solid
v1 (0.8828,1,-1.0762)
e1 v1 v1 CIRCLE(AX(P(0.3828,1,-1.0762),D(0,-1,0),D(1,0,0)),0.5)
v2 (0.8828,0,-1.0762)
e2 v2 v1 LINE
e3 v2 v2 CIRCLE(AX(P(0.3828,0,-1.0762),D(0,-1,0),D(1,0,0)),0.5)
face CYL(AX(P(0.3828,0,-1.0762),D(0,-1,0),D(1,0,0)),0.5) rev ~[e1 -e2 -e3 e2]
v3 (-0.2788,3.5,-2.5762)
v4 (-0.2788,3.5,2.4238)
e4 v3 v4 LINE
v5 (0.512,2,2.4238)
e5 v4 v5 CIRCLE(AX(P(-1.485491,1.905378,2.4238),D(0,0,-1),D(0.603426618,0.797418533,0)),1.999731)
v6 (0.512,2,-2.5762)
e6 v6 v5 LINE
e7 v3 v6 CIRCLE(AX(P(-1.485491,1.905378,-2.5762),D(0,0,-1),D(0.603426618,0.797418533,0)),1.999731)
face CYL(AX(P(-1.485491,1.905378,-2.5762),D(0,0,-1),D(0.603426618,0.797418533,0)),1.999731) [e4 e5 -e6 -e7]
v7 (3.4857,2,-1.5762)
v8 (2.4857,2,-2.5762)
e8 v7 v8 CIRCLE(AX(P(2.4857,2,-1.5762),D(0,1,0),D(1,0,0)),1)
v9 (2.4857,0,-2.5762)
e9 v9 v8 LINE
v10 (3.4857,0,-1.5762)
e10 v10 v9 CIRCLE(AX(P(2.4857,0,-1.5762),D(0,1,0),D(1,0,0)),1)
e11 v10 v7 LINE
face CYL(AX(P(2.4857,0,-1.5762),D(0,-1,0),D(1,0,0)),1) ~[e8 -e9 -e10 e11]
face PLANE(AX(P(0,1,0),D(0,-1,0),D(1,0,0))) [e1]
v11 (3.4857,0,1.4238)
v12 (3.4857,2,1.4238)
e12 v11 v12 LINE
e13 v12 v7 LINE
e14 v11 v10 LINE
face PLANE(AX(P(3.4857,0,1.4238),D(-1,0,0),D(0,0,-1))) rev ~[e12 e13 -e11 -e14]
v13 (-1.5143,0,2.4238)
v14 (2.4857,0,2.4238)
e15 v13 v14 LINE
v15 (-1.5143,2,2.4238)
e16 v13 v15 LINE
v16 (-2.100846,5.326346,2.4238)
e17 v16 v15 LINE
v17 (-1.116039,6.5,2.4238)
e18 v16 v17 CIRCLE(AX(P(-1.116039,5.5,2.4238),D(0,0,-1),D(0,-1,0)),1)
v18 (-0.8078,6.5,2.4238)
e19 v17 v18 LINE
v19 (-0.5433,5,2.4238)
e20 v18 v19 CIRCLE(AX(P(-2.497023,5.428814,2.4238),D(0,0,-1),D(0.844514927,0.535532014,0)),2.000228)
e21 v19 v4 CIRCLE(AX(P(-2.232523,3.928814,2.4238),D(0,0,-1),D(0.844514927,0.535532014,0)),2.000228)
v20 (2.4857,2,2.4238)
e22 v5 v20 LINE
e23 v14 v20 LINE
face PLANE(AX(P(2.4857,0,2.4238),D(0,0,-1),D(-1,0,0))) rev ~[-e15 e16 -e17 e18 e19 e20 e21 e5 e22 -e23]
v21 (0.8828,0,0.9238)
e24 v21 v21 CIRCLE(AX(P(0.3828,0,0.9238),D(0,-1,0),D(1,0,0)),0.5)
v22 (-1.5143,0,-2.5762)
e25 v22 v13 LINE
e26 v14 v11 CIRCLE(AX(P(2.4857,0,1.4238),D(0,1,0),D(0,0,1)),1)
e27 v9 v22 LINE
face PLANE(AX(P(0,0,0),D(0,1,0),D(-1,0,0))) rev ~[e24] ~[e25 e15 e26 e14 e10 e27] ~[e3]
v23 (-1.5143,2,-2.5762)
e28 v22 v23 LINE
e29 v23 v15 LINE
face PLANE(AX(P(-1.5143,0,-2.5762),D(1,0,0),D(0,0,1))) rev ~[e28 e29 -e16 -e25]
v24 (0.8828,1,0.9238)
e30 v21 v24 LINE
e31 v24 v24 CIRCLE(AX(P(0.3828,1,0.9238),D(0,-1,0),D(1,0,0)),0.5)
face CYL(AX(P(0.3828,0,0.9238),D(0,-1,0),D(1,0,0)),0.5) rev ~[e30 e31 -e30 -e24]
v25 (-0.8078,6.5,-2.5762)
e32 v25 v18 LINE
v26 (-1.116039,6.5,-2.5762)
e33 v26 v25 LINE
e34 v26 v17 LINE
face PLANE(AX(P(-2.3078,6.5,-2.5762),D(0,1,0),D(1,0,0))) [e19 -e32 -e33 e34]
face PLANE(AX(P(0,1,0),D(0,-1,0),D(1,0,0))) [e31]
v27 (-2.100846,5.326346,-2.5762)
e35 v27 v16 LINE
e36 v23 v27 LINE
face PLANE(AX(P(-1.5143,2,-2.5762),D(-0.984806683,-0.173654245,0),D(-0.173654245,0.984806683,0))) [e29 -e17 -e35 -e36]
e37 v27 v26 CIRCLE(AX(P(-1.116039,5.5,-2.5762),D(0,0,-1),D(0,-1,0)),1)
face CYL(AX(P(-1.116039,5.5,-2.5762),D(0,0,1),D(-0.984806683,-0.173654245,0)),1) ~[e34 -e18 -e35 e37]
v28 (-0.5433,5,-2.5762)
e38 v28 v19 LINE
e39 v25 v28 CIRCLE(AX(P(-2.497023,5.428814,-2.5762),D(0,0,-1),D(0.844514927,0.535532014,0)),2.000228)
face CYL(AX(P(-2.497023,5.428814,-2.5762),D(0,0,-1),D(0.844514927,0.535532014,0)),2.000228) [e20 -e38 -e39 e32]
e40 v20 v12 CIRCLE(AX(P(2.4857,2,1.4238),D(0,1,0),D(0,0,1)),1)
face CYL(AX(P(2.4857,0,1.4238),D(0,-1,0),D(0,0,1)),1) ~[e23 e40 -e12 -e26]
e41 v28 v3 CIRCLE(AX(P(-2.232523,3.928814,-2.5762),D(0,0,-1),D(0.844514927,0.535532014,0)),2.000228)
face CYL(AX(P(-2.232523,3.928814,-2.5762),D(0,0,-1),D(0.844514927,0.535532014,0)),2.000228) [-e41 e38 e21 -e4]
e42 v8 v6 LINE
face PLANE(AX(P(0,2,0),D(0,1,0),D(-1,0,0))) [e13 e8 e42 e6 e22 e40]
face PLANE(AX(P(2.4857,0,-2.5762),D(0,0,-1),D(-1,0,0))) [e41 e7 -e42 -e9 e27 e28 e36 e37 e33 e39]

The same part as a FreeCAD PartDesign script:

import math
import FreeCAD as App
import Part
import Sketcher
Q = App.Units.Quantity


def edges_at(feature, points):
    """Names of the edges that pass closest to the given points."""
    edges = feature.Shape.Edges
    near = lambda p: min(range(len(edges)), key=lambda i: edges[i].distToShape(Part.Vertex(*p))[0])
    return sorted({f"Edge{near(p) + 1}" for p in points})

doc = App.newDocument("Part")
body = doc.addObject("PartDesign::Body", "Body")

sketch1 = body.newObject("Sketcher::SketchObject", "Sketch")
sketch1.AttachmentSupport = (doc.getObject("XZ_Plane"), [""])
sketch1.MapMode = "FlatFace"
sketch1.addGeometry(Part.ArcOfCircle(Part.Circle(App.Vector(2.5, -1.6, 0), App.Vector(0, 0, 1), 1), math.radians(-90), math.radians(0)), False)
sketch1.addGeometry(Part.LineSegment(App.Vector(2.5, -2.6, 0), App.Vector(-1.5, -2.6, 0)), False)
sketch1.addGeometry(Part.LineSegment(App.Vector(-1.5, -2.6, 0), App.Vector(-1.5, 2.4, 0)), False)
sketch1.addGeometry(Part.LineSegment(App.Vector(-1.5, 2.4, 0), App.Vector(2.5, 2.4, 0)), False)
sketch1.addGeometry(Part.ArcOfCircle(Part.Circle(App.Vector(2.5, 1.4, 0), App.Vector(0, 0, 1), 1), math.radians(0), math.radians(90)), False)
sketch1.addGeometry(Part.LineSegment(App.Vector(3.5, 1.4, 0), App.Vector(3.5, -1.6, 0)), False)
sketch1.addConstraint(Sketcher.Constraint("Tangent", 0, 1, 1, 1))
sketch1.addConstraint(Sketcher.Constraint("Coincident", 1, 2, 2, 1))
sketch1.addConstraint(Sketcher.Constraint("Coincident", 2, 2, 3, 1))
sketch1.addConstraint(Sketcher.Constraint("Tangent", 3, 2, 4, 2))
sketch1.addConstraint(Sketcher.Constraint("Tangent", 4, 1, 5, 1))
sketch1.addConstraint(Sketcher.Constraint("Tangent", 5, 2, 0, 2))
sketch1.addConstraint(Sketcher.Constraint("Horizontal", 1))
sketch1.addConstraint(Sketcher.Constraint("Vertical", 2))
sketch1.addConstraint(Sketcher.Constraint("Horizontal", 3))
sketch1.addConstraint(Sketcher.Constraint("Vertical", 5))
sketch1.addConstraint(Sketcher.Constraint("Equal", 0, 4))
sketch1.addConstraint(Sketcher.Constraint("Radius", 0, Q("1 mm")))
sketch1.addConstraint(Sketcher.Constraint("DistanceY", 2, 1, 2, 2, Q("5 mm")))
sketch1.addConstraint(Sketcher.Constraint("DistanceX", 2, 2, 4, 1, Q("5 mm")))
sketch1.addConstraint(Sketcher.Constraint("DistanceX", -1, 1, 0, 3, Q("2.4857 mm")))
sketch1.addConstraint(Sketcher.Constraint("DistanceY", 0, 3, -1, 1, Q("1.5762 mm")))
pad1 = body.newObject("PartDesign::Pad", "Pad")
pad1.Profile = sketch1
pad1.Length = 2
pad1.Reversed = True

sketch2 = body.newObject("Sketcher::SketchObject", "Sketch001")
sketch2.AttachmentSupport = (doc.getObject("XZ_Plane"), [""])
sketch2.MapMode = "FlatFace"
sketch2.addGeometry(Part.Circle(App.Vector(0.4, -1.1, 0), App.Vector(0, 0, 1), 0.5), False)
sketch2.addGeometry(Part.Circle(App.Vector(0.4, 0.9, 0), App.Vector(0, 0, 1), 0.5), False)
sketch2.addConstraint(Sketcher.Constraint("Equal", 0, 1))
sketch2.addConstraint(Sketcher.Constraint("Vertical", 0, 3, 1, 3))
sketch2.addConstraint(Sketcher.Constraint("Diameter", 0, Q("1 mm")))
sketch2.addConstraint(Sketcher.Constraint("DistanceY", 0, 3, 1, 3, Q("2 mm")))
sketch2.addConstraint(Sketcher.Constraint("DistanceX", -1, 1, 0, 3, Q("0.3828 mm")))
sketch2.addConstraint(Sketcher.Constraint("DistanceY", 0, 3, -1, 1, Q("1.0762 mm")))
pocket1 = body.newObject("PartDesign::Pocket", "Pocket")
pocket1.Profile = sketch2
pocket1.Length = 1

sketch3 = body.newObject("Sketcher::SketchObject", "Sketch002")
sketch3.AttachmentSupport = (doc.getObject("XY_Plane"), [""])
sketch3.MapMode = "FlatFace"
sketch3.AttachmentOffset = App.Placement(App.Vector(0, 0, -2.5762), App.Rotation())
sketch3.addGeometry(Part.ArcOfCircle(Part.Circle(App.Vector(-1.5, 1.9, 0), App.Vector(0, 0, 1), 2), math.radians(3), math.radians(53)), False)
sketch3.addGeometry(Part.LineSegment(App.Vector(0.5, 2, 0), App.Vector(-1.5, 2, 0)), False)
sketch3.addGeometry(Part.LineSegment(App.Vector(-1.5, 2, 0), App.Vector(-1.8, 3.5, 0)), False)
sketch3.addGeometry(Part.LineSegment(App.Vector(-1.8, 3.5, 0), App.Vector(-0.3, 3.5, 0)), False)
sketch3.addConstraint(Sketcher.Constraint("Coincident", 0, 1, 1, 1))
sketch3.addConstraint(Sketcher.Constraint("Coincident", 1, 2, 2, 1))
sketch3.addConstraint(Sketcher.Constraint("Coincident", 2, 2, 3, 1))
sketch3.addConstraint(Sketcher.Constraint("Coincident", 3, 2, 0, 2))
sketch3.addConstraint(Sketcher.Constraint("Horizontal", 1))
sketch3.addConstraint(Sketcher.Constraint("Horizontal", 3))
sketch3.addConstraint(Sketcher.Constraint("Radius", 0, Q("2 mm")))
sketch3.addConstraint(Sketcher.Constraint("Angle", 2, Q("100.0004 deg")))
sketch3.addConstraint(Sketcher.Constraint("DistanceX", 3, 1, 3, 2, Q("1.5 mm")))
sketch3.addConstraint(Sketcher.Constraint("DistanceY", -1, 1, 0, 1, Q("2 mm")))
sketch3.addConstraint(Sketcher.Constraint("DistanceY", 1, 2, 2, 2, Q("1.5 mm")))
sketch3.addConstraint(Sketcher.Constraint("DistanceX", 1, 2, 1, 1, Q("2.0263 mm")))
sketch3.addConstraint(Sketcher.Constraint("DistanceX", -1, 1, 0, 1, Q("0.512 mm")))
pad2 = body.newObject("PartDesign::Pad", "Pad001")
pad2.Profile = sketch3
pad2.Length = 5

sketch4 = body.newObject("Sketcher::SketchObject", "Sketch003")
sketch4.AttachmentSupport = (doc.getObject("XY_Plane"), [""])
sketch4.MapMode = "FlatFace"
sketch4.AttachmentOffset = App.Placement(App.Vector(0, 0, -2.5762), App.Rotation())
sketch4.addGeometry(Part.ArcOfCircle(Part.Circle(App.Vector(-2.2, 3.9, 0), App.Vector(0, 0, 1), 2), math.radians(-12), math.radians(32)), False)
sketch4.addGeometry(Part.LineSegment(App.Vector(-0.3, 3.5, 0), App.Vector(-1.8, 3.5, 0)), False)
sketch4.addGeometry(Part.LineSegment(App.Vector(-1.8, 3.5, 0), App.Vector(-2.3, 6.5, 0)), False)
sketch4.addGeometry(Part.LineSegment(App.Vector(-2.3, 6.5, 0), App.Vector(-0.8, 6.5, 0)), False)
sketch4.addGeometry(Part.ArcOfCircle(Part.Circle(App.Vector(-2.5, 5.4, 0), App.Vector(0, 0, 1), 2), math.radians(-12), math.radians(32)), False)
sketch4.addConstraint(Sketcher.Constraint("Coincident", 0, 1, 1, 1))
sketch4.addConstraint(Sketcher.Constraint("Coincident", 1, 2, 2, 1))
sketch4.addConstraint(Sketcher.Constraint("Coincident", 2, 2, 3, 1))
sketch4.addConstraint(Sketcher.Constraint("Coincident", 3, 2, 4, 2))
sketch4.addConstraint(Sketcher.Constraint("Coincident", 4, 1, 0, 2))
sketch4.addConstraint(Sketcher.Constraint("Horizontal", 1))
sketch4.addConstraint(Sketcher.Constraint("Horizontal", 3))
sketch4.addConstraint(Sketcher.Constraint("Equal", 0, 4))
sketch4.addConstraint(Sketcher.Constraint("Equal", 1, 3))
sketch4.addConstraint(Sketcher.Constraint("Radius", 0, Q("2 mm")))
sketch4.addConstraint(Sketcher.Constraint("Angle", 2, Q("100.0004 deg")))
sketch4.addConstraint(Sketcher.Constraint("DistanceX", 1, 2, 1, 1, Q("1.5 mm")))
sketch4.addConstraint(Sketcher.Constraint("DistanceY", 0, 3, 4, 3, Q("1.5 mm")))
sketch4.addConstraint(Sketcher.Constraint("DistanceY", 4, 1, 3, 2, Q("1.5 mm")))
sketch4.addConstraint(Sketcher.Constraint("DistanceY", 0, 1, 4, 1, Q("1.5 mm")))
sketch4.addConstraint(Sketcher.Constraint("DistanceY", -1, 1, 4, 1, Q("5 mm")))
sketch4.addConstraint(Sketcher.Constraint("DistanceX", 0, 3, -1, 1, Q("2.2323 mm")))
pad3 = body.newObject("PartDesign::Pad", "Pad002")
pad3.Profile = sketch4
pad3.Length = 5
doc.recompute()

fillet = body.newObject("PartDesign::Fillet", "Fillet")
fillet.Base = (pad3, edges_at(pad3, [(-2.308, 6.5, -0.076)]))
fillet.Radius = 1

doc.recompute()
